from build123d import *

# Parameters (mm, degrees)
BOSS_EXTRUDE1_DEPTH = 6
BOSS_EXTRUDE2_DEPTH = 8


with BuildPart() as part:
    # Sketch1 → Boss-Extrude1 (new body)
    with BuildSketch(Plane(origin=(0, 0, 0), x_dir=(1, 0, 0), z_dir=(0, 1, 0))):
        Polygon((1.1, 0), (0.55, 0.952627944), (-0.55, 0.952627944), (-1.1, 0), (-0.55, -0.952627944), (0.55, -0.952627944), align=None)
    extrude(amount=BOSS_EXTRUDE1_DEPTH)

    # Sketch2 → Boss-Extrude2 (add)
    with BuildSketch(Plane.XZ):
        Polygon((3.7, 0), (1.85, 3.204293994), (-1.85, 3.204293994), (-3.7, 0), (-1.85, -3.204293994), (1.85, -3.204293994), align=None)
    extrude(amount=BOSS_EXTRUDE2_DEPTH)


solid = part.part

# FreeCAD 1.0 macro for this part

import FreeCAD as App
import Part
import Sketcher
Q = App.Units.Quantity


def add_polygon(sketch, points):
    """Adds a closed chain of lines whose ends are joined by coincident constraints."""
    first, n = sketch.GeometryCount, len(points)
    for a, b in zip(points, points[1:] + points[:1]):
        sketch.addGeometry(Part.LineSegment(App.Vector(*a, 0), App.Vector(*b, 0)), False)
    for i in range(n):
        sketch.addConstraint(Sketcher.Constraint("Coincident", first + i, 2, first + (i + 1) % n, 1))

doc = App.newDocument("Part")
body = doc.addObject("PartDesign::Body", "Body")

# Sketch on XZ plane
sketch1 = body.newObject("Sketcher::SketchObject", "Sketch")
sketch1.AttachmentSupport = (doc.getObject("XZ_Plane"), [""])
sketch1.MapMode = "FlatFace"
add_polygon(sketch1, [(1.1, 0), (0.55, -0.952628), (-0.55, -0.952628), (-1.1, 0), (-0.55, 0.952628), (0.55, 0.952628)])  # lines 0-5
sketch1.addConstraint([
    Sketcher.Constraint("Horizontal", 1),
    Sketcher.Constraint("Horizontal", 4),
    Sketcher.Constraint("Symmetric", 0, 2, 3, 2, -1, 1),
    Sketcher.Constraint("Symmetric", 2, 2, 5, 2, -1, 1),
    Sketcher.Constraint("PointOnObject", 2, 2, -1),
    Sketcher.Constraint("Parallel", 2, 5),
    Sketcher.Constraint("Vertical", 1, 2, 3, 2),
    Sketcher.Constraint("Angle", 0, Q("-120 deg")),
    Sketcher.Constraint("DistanceX", 1, 2, 1, 1, 1.1),
    Sketcher.Constraint("Distance", 0, 1.1),
])
pad1 = body.newObject("PartDesign::Pad", "Pad")
pad1.Profile = sketch1
pad1.Length = 6
pad1.Reversed = True

# Sketch on XZ plane
sketch2 = body.newObject("Sketcher::SketchObject", "Sketch001")
sketch2.AttachmentSupport = (doc.getObject("XZ_Plane"), [""])
sketch2.MapMode = "FlatFace"
add_polygon(sketch2, [(3.7, 0), (1.85, 3.204294), (-1.85, 3.204294), (-3.7, 0), (-1.85, -3.204294), (1.85, -3.204294)])  # lines 0-5
sketch2.addConstraint([
    Sketcher.Constraint("Horizontal", 1),
    Sketcher.Constraint("Horizontal", 4),
    Sketcher.Constraint("Symmetric", 0, 2, 3, 2, -1, 1),
    Sketcher.Constraint("Symmetric", 2, 2, 5, 2, -1, 1),
    Sketcher.Constraint("PointOnObject", 2, 2, -1),
    Sketcher.Constraint("Parallel", 2, 5),
    Sketcher.Constraint("Vertical", 1, 2, 3, 2),
    Sketcher.Constraint("Angle", 0, Q("120 deg")),
    Sketcher.Constraint("DistanceX", 1, 2, 1, 1, 3.7),
    Sketcher.Constraint("Distance", 0, 3.7),
])
pad2 = body.newObject("PartDesign::Pad", "Pad001")
pad2.Profile = sketch2
pad2.Length = 8

doc.recompute()
